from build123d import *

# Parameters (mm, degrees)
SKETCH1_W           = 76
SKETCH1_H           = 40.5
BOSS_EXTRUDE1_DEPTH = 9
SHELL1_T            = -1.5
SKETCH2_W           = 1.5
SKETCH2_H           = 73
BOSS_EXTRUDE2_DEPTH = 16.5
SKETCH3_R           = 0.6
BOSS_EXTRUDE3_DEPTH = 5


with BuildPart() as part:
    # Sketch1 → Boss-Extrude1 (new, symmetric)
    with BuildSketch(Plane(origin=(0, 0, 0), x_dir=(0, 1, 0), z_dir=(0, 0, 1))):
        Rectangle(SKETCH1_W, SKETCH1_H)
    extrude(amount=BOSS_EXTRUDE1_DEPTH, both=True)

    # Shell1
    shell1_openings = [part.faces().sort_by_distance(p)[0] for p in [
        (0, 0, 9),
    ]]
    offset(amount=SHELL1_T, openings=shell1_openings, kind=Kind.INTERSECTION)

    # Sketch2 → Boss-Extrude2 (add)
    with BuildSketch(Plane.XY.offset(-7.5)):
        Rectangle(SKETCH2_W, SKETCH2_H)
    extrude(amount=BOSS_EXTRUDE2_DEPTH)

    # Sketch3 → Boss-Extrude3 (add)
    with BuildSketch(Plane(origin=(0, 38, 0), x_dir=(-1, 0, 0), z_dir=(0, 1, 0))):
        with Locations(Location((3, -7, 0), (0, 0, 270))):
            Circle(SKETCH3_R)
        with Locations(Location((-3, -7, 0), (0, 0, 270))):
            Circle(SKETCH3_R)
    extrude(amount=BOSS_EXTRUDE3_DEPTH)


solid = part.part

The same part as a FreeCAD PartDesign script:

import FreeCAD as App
import Part
import Sketcher

V = App.Vector
Q = App.Units.Quantity


def faces_at(feature, points):
    """Names of the faces that lie closest to the given points."""
    faces = feature.Shape.Faces
    near = lambda p: min(range(len(faces)), key=lambda i: faces[i].distToShape(Part.Vertex(*p))[0])
    return sorted({f"Face{near(p) + 1}" for p in points})

doc = App.newDocument("Part")
body = doc.addObject("PartDesign::Body", "Body")

# Sketch on XY plane
sketch1 = doc.addObject("Sketcher::SketchObject", "Sketch")
body.addObject(sketch1)
sketch1.AttachmentSupport = (doc.XY_Plane, [""])
sketch1.MapMode = "FlatFace"
sketch1.addGeometry([
    Part.LineSegment(V(-20, -38, 0), V(20, -38, 0)),
    Part.LineSegment(V(20, -38, 0), V(20, 38, 0)),
    Part.LineSegment(V(20, 38, 0), V(-20, 38, 0)),
    Part.LineSegment(V(-20, 38, 0), V(-20, -38, 0)),
], False)
sketch1.addConstraint([
    Sketcher.Constraint("Coincident", 0, 2, 1, 1),
    Sketcher.Constraint("Coincident", 1, 2, 2, 1),
    Sketcher.Constraint("Coincident", 2, 2, 3, 1),
    Sketcher.Constraint("Coincident", 3, 2, 0, 1),
    Sketcher.Constraint("Horizontal", 0),
    Sketcher.Constraint("Vertical", 1),
    Sketcher.Constraint("Horizontal", 2),
    Sketcher.Constraint("Vertical", 3),
    Sketcher.Constraint("Symmetric", 0, 2, 2, 2, -1, 1),
    Sketcher.Constraint("DistanceY", 1, 1, 1, 2, Q("76 mm")),
    Sketcher.Constraint("DistanceX", 0, 1, 0, 2, Q("40.5 mm")),
])
pad1 = doc.addObject("PartDesign::Pad", "Pad")
body.addObject(pad1)
pad1.Profile = sketch1
pad1.Length = 18
pad1.Midplane = True
doc.recompute()

thickness = doc.addObject("PartDesign::Thickness", "Thickness")
body.addObject(thickness)
thickness.Base = (pad1, faces_at(pad1, [(0, 0, 9)]))
thickness.Value = 1.5
thickness.Reversed = True
thickness.Join = "Intersection"

# Sketch on XY plane
sketch2 = doc.addObject("Sketcher::SketchObject", "Sketch001")
body.addObject(sketch2)
sketch2.AttachmentSupport = (doc.XY_Plane, [""])
sketch2.MapMode = "FlatFace"
sketch2.AttachmentOffset = App.Placement(V(0, 0, -7.5), App.Rotation())
sketch2.addGeometry([
    Part.LineSegment(V(-0.8, 36.5, 0), V(-0.8, -36.5, 0)),
    Part.LineSegment(V(-0.8, -36.5, 0), V(0.8, -36.5, 0)),
    Part.LineSegment(V(0.8, -36.5, 0), V(0.8, 36.5, 0)),
    Part.LineSegment(V(0.8, 36.5, 0), V(-0.8, 36.5, 0)),
], False)
sketch2.addConstraint([
    Sketcher.Constraint("Coincident", 0, 2, 1, 1),
    Sketcher.Constraint("Coincident", 1, 2, 2, 1),
    Sketcher.Constraint("Coincident", 2, 2, 3, 1),
    Sketcher.Constraint("Coincident", 3, 2, 0, 1),
    Sketcher.Constraint("Vertical", 0),
    Sketcher.Constraint("Horizontal", 1),
    Sketcher.Constraint("Vertical", 2),
    Sketcher.Constraint("Horizontal", 3),
    Sketcher.Constraint("Symmetric", 0, 2, 2, 2, -1, 1),
    Sketcher.Constraint("DistanceY", 0, 2, 0, 1, Q("73 mm")),
    Sketcher.Constraint("DistanceX", 1, 1, 1, 2, Q("1.5 mm")),
])
pad2 = doc.addObject("PartDesign::Pad", "Pad001")
body.addObject(pad2)
pad2.Profile = sketch2
pad2.Length = 16.5

# Sketch on XZ plane
sketch3 = doc.addObject("Sketcher::SketchObject", "Sketch002")
body.addObject(sketch3)
sketch3.AttachmentSupport = (doc.XZ_Plane, [""])
sketch3.MapMode = "FlatFace"
sketch3.AttachmentOffset = App.Placement(V(0, 0, -38), App.Rotation())
sketch3.addGeometry([
    Part.Circle(V(-3, -7, 0), V(0, 0, 1), 0.6),
    Part.Circle(V(3, -7, 0), V(0, 0, 1), 0.6),
], False)
sketch3.addConstraint([
    Sketcher.Constraint("Equal", 0, 1),
    Sketcher.Constraint("Symmetric", 0, 3, 1, 3, -2),
    Sketcher.Constraint("Diameter", 0, Q("1.2 mm")),
    Sketcher.Constraint("DistanceX", 0, 3, -1, 1, Q("3 mm")),
    Sketcher.Constraint("DistanceY", 0, 3, -1, 1, Q("7 mm")),
])
pad3 = doc.addObject("PartDesign::Pad", "Pad002")
body.addObject(pad3)
pad3.Profile = sketch3
pad3.Length = 5
pad3.Reversed = True

doc.recompute()
